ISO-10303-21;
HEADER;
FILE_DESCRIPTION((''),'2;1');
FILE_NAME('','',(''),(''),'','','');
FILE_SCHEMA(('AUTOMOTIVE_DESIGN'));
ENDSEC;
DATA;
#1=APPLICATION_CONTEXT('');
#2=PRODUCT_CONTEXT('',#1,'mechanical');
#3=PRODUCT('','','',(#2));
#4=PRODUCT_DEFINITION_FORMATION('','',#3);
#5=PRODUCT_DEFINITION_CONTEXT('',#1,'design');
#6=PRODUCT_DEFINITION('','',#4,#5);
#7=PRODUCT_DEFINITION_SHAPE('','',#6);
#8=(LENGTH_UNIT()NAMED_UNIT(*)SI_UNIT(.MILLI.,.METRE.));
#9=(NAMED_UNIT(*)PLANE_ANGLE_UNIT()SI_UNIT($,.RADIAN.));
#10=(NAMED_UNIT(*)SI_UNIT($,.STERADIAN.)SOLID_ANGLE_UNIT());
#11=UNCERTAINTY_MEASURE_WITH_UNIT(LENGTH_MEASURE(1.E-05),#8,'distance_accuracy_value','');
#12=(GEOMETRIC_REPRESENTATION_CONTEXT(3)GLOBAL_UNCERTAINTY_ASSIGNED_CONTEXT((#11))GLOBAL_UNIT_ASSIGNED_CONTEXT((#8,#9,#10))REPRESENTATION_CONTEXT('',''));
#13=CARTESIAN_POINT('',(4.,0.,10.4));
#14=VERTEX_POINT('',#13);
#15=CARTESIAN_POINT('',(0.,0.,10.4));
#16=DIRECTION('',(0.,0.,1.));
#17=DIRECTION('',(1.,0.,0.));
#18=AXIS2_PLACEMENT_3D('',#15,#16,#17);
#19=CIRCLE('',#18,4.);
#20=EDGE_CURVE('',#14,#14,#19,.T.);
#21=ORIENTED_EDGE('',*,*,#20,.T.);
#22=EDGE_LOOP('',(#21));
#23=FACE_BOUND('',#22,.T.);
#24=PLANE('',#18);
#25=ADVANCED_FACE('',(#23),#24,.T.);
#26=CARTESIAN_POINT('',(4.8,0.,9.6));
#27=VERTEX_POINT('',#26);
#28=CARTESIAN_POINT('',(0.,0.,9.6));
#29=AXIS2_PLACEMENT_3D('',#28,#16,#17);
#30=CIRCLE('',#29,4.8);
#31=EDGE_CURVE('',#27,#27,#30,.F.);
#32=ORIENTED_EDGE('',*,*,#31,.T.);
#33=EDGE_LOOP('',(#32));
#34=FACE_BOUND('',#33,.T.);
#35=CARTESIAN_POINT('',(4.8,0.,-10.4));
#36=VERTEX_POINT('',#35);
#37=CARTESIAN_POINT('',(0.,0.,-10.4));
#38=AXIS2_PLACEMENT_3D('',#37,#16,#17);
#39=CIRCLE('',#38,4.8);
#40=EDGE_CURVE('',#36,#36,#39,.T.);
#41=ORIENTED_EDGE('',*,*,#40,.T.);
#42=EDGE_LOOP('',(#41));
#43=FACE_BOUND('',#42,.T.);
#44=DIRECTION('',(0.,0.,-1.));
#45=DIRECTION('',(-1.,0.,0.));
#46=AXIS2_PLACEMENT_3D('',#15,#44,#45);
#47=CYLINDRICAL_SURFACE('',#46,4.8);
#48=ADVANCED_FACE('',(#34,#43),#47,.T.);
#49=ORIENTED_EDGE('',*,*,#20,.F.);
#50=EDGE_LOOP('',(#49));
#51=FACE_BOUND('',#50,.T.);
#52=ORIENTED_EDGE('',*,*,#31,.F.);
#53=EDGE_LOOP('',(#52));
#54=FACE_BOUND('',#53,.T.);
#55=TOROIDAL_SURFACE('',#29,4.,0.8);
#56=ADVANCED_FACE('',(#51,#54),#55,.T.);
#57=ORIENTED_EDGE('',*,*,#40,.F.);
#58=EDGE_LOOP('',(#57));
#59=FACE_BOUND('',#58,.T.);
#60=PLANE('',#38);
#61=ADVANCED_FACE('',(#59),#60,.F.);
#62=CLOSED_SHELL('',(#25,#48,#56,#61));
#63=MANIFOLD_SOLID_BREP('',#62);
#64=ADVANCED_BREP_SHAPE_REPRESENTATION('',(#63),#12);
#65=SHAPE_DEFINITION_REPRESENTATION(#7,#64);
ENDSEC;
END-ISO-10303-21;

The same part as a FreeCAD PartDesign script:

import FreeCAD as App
import Part
import Sketcher

V = App.Vector
Q = App.Units.Quantity


def edges_at(feature, points):
    """Names of the edges that pass closest to the given points."""
    edges = feature.Shape.Edges
    near = lambda p: min(range(len(edges)), key=lambda i: edges[i].distToShape(Part.Vertex(*p))[0])
    return sorted({f"Edge{near(p) + 1}" for p in points})

doc = App.newDocument("Part")
body = doc.addObject("PartDesign::Body", "Body")

# Sketch on XY plane
sketch1 = doc.addObject("Sketcher::SketchObject", "Sketch")
body.addObject(sketch1)
sketch1.AttachmentSupport = (doc.XY_Plane, [""])
sketch1.MapMode = "FlatFace"
sketch1.addGeometry(Part.Circle(V(0, 0, 0), V(0, 0, 1), 4.8), False)
sketch1.addConstraint(Sketcher.Constraint("Coincident", 0, 3, -1, 1))
sketch1.addConstraint(Sketcher.Constraint("Diameter", 0, Q("9.6 mm")))
pad1 = doc.addObject("PartDesign::Pad", "Pad")
body.addObject(pad1)
pad1.Profile = sketch1
pad1.Length = 20.8
pad1.Midplane = True
doc.recompute()

fillet = doc.addObject("PartDesign::Fillet", "Fillet")
body.addObject(fillet)
fillet.Base = (pad1, edges_at(pad1, [(-4.8, 0, 10.4)]))
fillet.Radius = 0.8

doc.recompute()
